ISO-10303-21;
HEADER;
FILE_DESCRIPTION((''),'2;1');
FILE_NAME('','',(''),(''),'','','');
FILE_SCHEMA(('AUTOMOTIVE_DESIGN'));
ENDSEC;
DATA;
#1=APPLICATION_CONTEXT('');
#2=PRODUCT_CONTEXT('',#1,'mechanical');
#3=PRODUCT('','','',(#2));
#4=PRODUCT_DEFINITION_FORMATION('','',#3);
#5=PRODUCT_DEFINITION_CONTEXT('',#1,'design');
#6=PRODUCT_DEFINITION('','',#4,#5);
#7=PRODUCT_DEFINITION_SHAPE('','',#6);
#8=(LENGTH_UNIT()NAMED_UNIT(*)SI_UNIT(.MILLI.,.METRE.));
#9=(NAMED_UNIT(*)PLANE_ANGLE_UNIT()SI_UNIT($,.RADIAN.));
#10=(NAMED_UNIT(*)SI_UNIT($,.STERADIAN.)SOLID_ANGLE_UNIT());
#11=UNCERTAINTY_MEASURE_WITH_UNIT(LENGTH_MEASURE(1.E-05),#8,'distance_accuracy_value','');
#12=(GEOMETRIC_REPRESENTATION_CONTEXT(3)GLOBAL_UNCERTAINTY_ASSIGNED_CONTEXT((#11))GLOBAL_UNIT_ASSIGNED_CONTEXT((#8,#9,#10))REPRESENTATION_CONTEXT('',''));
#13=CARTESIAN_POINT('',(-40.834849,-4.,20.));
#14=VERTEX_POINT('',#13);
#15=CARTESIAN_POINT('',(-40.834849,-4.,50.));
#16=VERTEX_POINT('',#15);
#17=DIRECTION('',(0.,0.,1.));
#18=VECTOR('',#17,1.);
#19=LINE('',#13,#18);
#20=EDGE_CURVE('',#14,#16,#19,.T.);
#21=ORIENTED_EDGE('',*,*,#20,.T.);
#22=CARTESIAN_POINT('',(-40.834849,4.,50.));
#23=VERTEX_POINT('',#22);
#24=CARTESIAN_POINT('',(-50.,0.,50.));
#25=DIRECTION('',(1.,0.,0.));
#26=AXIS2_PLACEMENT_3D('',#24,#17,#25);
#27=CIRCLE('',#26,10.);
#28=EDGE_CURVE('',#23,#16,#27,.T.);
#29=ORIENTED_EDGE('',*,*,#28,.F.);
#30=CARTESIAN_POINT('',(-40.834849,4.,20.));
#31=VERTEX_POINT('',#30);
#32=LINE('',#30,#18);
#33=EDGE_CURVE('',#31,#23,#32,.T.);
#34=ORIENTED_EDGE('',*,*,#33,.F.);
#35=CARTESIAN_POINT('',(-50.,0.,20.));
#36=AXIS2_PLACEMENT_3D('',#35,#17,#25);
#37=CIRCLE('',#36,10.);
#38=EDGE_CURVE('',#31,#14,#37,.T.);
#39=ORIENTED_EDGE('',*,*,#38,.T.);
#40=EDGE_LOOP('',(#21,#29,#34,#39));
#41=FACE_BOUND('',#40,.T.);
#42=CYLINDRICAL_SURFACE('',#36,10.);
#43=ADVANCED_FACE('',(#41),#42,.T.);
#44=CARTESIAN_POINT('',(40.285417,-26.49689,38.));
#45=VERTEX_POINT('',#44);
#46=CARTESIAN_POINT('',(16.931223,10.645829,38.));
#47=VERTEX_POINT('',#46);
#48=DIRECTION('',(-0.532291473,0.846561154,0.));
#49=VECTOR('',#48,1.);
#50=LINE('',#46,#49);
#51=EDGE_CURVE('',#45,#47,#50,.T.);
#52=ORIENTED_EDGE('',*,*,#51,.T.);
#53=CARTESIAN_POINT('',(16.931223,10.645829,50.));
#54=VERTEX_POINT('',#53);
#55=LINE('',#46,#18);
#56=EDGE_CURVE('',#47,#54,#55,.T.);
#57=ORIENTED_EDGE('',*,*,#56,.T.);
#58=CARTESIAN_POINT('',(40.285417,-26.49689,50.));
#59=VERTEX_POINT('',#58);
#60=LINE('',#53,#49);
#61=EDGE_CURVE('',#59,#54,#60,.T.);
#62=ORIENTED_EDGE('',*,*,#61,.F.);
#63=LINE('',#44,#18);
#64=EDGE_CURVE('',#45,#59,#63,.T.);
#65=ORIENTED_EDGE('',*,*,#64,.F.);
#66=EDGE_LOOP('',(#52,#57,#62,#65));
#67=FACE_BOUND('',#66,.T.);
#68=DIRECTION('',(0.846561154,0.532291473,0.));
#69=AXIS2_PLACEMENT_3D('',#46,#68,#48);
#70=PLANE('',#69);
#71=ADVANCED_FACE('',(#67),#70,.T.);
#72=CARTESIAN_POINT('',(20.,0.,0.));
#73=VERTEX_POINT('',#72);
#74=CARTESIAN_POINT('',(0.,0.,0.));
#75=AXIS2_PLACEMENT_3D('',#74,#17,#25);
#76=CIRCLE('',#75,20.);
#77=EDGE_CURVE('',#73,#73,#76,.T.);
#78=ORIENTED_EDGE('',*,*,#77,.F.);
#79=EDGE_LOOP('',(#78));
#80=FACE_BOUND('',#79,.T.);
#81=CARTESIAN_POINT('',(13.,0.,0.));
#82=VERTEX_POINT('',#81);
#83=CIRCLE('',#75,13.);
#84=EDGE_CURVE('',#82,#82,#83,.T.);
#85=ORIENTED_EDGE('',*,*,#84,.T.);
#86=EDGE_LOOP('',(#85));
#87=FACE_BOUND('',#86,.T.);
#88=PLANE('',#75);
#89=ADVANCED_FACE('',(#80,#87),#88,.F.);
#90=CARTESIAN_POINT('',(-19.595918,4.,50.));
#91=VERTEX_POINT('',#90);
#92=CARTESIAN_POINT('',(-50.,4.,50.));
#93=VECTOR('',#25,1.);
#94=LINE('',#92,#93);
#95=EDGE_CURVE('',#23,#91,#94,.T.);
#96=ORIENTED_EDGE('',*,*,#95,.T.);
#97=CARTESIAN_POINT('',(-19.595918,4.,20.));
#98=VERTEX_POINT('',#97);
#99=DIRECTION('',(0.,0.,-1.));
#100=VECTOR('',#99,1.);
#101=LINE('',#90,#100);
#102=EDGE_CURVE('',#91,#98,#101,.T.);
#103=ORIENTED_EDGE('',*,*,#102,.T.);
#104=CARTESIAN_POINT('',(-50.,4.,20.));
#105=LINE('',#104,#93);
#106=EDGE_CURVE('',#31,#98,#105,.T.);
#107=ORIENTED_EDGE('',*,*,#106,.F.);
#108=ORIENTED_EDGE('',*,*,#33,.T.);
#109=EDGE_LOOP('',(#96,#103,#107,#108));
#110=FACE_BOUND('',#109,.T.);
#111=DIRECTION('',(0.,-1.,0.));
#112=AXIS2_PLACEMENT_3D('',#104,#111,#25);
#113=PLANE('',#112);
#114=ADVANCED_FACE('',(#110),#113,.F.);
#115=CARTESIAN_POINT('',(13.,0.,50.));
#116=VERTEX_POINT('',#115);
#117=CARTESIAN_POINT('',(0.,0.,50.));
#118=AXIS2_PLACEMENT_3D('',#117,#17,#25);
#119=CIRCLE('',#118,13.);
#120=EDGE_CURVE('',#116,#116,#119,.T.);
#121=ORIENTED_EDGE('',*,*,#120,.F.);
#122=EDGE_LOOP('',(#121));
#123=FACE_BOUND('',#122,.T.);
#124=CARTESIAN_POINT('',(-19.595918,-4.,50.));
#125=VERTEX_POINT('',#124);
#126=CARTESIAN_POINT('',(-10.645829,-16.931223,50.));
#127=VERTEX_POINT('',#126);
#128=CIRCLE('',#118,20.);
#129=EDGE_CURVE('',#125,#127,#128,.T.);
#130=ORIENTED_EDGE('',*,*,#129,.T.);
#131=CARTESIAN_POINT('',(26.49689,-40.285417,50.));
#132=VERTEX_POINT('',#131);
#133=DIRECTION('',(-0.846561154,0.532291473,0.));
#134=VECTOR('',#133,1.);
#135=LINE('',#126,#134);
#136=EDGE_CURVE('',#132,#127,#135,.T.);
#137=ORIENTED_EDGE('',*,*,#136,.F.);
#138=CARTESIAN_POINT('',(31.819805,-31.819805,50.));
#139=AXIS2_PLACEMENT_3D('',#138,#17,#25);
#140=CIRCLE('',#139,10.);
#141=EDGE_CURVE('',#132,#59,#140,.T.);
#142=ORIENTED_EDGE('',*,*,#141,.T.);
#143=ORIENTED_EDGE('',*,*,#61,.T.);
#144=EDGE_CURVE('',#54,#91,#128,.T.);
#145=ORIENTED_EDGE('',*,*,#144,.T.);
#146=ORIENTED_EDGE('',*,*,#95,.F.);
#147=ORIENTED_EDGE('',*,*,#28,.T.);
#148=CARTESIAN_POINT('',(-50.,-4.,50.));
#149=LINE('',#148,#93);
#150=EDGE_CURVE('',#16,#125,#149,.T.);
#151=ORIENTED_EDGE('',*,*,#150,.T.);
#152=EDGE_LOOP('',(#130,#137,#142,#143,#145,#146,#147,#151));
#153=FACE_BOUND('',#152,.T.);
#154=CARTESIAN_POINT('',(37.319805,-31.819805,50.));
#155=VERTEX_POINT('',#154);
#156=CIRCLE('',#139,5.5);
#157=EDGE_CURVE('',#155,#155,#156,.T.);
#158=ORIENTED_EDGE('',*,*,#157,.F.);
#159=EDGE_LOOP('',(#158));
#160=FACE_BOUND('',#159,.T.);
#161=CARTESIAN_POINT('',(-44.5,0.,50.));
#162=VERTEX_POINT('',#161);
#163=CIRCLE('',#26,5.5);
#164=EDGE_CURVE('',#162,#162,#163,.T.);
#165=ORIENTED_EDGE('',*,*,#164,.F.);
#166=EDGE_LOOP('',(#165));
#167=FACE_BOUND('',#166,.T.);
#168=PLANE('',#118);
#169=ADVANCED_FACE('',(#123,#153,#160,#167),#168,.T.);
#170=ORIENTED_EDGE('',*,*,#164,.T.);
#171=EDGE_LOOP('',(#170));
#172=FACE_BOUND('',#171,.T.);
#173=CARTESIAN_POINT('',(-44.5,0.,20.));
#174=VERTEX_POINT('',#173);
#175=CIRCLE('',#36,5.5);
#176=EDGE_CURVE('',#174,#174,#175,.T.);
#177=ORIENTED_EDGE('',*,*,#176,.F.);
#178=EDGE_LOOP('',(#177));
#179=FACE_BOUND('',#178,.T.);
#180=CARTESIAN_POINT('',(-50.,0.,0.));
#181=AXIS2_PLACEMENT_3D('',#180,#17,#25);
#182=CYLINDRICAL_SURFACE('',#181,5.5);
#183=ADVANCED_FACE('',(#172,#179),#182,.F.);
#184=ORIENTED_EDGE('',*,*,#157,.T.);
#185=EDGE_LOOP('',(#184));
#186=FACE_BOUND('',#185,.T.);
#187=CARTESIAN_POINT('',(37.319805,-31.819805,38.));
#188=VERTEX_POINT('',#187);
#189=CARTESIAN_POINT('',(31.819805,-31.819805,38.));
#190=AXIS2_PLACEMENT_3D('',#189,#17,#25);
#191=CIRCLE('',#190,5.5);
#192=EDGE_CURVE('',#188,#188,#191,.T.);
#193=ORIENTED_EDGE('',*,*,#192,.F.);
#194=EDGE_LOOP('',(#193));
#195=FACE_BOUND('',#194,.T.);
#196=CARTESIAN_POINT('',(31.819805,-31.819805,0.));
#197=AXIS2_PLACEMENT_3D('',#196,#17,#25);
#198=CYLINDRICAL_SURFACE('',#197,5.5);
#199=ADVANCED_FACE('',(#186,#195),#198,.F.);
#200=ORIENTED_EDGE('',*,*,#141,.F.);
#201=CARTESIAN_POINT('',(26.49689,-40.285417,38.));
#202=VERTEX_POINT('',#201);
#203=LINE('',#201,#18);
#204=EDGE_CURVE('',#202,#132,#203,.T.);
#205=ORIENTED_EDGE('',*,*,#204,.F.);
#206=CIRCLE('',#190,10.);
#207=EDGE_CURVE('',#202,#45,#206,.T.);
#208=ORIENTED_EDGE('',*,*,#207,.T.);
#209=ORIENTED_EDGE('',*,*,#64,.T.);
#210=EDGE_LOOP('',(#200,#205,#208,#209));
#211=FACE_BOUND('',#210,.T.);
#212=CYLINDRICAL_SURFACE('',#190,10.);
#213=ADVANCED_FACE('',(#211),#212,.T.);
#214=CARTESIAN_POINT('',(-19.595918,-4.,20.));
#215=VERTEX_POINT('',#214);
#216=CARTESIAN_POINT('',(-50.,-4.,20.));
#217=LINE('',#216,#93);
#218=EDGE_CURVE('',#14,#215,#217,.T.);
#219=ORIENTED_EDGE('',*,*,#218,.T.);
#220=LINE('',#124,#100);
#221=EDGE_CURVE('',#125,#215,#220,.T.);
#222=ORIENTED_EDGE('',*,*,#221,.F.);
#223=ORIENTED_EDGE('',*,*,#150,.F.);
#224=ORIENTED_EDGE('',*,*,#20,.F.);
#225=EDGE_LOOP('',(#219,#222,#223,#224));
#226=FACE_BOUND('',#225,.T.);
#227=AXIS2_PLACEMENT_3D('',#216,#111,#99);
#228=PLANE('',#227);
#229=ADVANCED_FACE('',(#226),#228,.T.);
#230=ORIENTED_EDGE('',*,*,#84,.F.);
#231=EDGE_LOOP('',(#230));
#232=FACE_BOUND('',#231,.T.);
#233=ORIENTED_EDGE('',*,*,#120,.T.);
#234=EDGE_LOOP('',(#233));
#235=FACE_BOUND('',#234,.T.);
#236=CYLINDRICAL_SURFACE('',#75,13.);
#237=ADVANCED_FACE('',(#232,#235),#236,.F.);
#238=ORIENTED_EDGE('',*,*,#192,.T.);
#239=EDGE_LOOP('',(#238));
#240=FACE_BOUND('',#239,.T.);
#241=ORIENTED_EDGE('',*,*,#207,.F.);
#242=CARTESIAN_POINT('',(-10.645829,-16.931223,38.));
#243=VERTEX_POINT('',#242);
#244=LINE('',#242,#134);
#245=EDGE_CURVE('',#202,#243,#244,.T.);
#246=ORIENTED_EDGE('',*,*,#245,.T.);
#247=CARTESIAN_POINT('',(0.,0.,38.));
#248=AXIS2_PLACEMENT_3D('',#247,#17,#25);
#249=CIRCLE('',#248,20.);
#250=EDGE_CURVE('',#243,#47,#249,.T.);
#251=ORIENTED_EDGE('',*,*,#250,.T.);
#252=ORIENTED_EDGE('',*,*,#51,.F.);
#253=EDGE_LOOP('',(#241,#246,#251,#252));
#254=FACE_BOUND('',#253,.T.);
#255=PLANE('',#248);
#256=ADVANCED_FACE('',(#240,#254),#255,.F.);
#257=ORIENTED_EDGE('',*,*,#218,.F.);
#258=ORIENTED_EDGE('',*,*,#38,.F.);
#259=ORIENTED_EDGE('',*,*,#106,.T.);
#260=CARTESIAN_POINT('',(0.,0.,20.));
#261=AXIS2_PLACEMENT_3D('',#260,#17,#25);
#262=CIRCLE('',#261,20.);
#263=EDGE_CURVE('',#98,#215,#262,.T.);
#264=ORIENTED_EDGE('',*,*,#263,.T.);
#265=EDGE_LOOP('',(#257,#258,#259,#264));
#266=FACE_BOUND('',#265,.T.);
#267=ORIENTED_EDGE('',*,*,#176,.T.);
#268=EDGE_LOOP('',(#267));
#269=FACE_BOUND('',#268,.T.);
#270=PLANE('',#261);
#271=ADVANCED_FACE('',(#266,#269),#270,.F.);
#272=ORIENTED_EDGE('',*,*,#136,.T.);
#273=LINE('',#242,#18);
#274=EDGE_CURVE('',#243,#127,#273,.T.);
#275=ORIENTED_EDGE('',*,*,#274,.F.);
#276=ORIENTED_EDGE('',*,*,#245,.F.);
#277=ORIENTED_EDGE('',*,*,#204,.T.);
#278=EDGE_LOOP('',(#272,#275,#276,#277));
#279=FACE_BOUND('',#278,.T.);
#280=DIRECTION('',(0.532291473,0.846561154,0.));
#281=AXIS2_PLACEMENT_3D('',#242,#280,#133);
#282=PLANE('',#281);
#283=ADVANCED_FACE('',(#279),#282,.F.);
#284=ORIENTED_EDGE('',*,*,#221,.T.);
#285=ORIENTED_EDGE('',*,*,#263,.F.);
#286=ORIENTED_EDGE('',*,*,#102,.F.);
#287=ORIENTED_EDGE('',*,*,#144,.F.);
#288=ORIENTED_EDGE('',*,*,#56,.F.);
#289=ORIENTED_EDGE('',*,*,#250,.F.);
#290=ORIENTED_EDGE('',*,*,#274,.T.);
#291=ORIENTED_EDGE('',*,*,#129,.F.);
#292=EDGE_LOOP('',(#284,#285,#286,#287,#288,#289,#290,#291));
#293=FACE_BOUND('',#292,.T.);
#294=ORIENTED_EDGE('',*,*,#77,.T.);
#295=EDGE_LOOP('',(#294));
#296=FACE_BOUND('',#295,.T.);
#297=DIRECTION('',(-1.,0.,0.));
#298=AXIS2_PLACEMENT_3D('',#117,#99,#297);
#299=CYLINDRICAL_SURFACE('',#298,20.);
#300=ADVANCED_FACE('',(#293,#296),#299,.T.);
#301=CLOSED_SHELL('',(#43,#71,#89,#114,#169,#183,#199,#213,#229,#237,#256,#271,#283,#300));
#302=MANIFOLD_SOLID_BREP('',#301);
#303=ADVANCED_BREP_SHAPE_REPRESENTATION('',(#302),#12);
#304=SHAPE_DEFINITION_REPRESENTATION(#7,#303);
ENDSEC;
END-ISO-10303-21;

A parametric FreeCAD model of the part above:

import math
import FreeCAD as App
import Part
import Sketcher
Q = App.Units.Quantity

doc = App.newDocument("Part")
body = doc.addObject("PartDesign::Body", "Body")

sketch1 = body.newObject("Sketcher::SketchObject", "Sketch")
sketch1.AttachmentSupport = (doc.getObject("XY_Plane"), [""])
sketch1.MapMode = "FlatFace"
sketch1.addGeometry(Part.Circle(App.Vector(0, 0, 0), App.Vector(0, 0, 1), 20), False)
sketch1.addConstraint([
    Sketcher.Constraint("Coincident", 0, 3, -1, 1),
    Sketcher.Constraint("Diameter", 0, Q("40 mm")),
])
pad1 = body.newObject("PartDesign::Pad", "Pad")
pad1.Profile = sketch1
pad1.Length = 50

sketch2 = body.newObject("Sketcher::SketchObject", "Sketch001")
sketch2.AttachmentSupport = (doc.getObject("XY_Plane"), [""])
sketch2.MapMode = "FlatFace"
sketch2.AttachmentOffset = App.Placement(App.Vector(0, 0, 50), App.Rotation())
sketch2.addGeometry([
    Part.LineSegment(App.Vector(-41, -4, 0), App.Vector(0, -4, 0)),
    Part.LineSegment(App.Vector(0, -4, 0), App.Vector(0, 4, 0)),
    Part.LineSegment(App.Vector(0, 4, 0), App.Vector(-41, 4, 0)),
    Part.ArcOfCircle(Part.Circle(App.Vector(-50, 0, 0), App.Vector(0, 0, 1), 10), math.radians(24), math.radians(336)),
], False)
sketch2.addConstraint([
    Sketcher.Constraint("Coincident", 0, 2, 1, 1),
    Sketcher.Constraint("Coincident", 1, 2, 2, 1),
    Sketcher.Constraint("Coincident", 2, 2, 3, 1),
    Sketcher.Constraint("Coincident", 3, 2, 0, 1),
    Sketcher.Constraint("Horizontal", 0),
    Sketcher.Constraint("Vertical", 1),
    Sketcher.Constraint("Horizontal", 2),
    Sketcher.Constraint("Symmetric", 0, 2, 1, 2, -1, 1),
    Sketcher.Constraint("PointOnObject", 3, 3, -1),
    Sketcher.Constraint("Radius", 3, Q("10 mm")),
    Sketcher.Constraint("DistanceY", 1, 1, 1, 2, Q("8 mm")),
    Sketcher.Constraint("DistanceX", 3, 3, -1, 1, Q("50 mm")),
])
pad2 = body.newObject("PartDesign::Pad", "Pad001")
pad2.Profile = sketch2
pad2.Length = 30
pad2.Reversed = True

sketch3 = body.newObject("Sketcher::SketchObject", "Sketch002")
sketch3.AttachmentSupport = (doc.getObject("XY_Plane"), [""])
sketch3.MapMode = "FlatFace"
sketch3.AttachmentOffset = App.Placement(App.Vector(0, 0, 38), App.Rotation())
sketch3.addGeometry([
    Part.LineSegment(App.Vector(-11, -17, 0), App.Vector(26, -40, 0)),
    Part.ArcOfCircle(Part.Circle(App.Vector(32, -32, 0), App.Vector(0, 0, 1), 10), math.radians(-122), math.radians(32)),
    Part.LineSegment(App.Vector(40, -26, 0), App.Vector(17, 11, 0)),
    Part.ArcOfCircle(Part.Circle(App.Vector(0, 0, 0), App.Vector(0, 0, 1), 20), math.radians(-122), math.radians(32)),
], False)
sketch3.addConstraint([
    Sketcher.Constraint("Tangent", 0, 2, 1, 1),
    Sketcher.Constraint("Tangent", 1, 2, 2, 1),
    Sketcher.Constraint("Tangent", 2, 2, 3, 2),
    Sketcher.Constraint("Tangent", 3, 1, 0, 1),
    Sketcher.Constraint("Coincident", 3, 3, -1, 1),
    Sketcher.Constraint("Radius", 1, Q("10 mm")),
    Sketcher.Constraint("Radius", 3, Q("20 mm")),
    Sketcher.Constraint("Distance", 0, Q("43.874822 mm")),
    Sketcher.Constraint("DistanceX", -1, 1, 0, 2, Q("26.49689 mm")),
])
pad3 = body.newObject("PartDesign::Pad", "Pad002")
pad3.Profile = sketch3
pad3.Length = 12

sketch4 = body.newObject("Sketcher::SketchObject", "Sketch003")
sketch4.AttachmentSupport = (doc.getObject("XY_Plane"), [""])
sketch4.MapMode = "FlatFace"
sketch4.AttachmentOffset = App.Placement(App.Vector(0, 0, 50), App.Rotation())
sketch4.addGeometry([
    Part.Circle(App.Vector(0, 0, 0), App.Vector(0, 0, 1), 13),
    Part.Circle(App.Vector(-50, 0, 0), App.Vector(0, 0, 1), 6),
    Part.Circle(App.Vector(32, -32, 0), App.Vector(0, 0, 1), 6),
], False)
sketch4.addConstraint([
    Sketcher.Constraint("Coincident", 0, 3, -1, 1),
    Sketcher.Constraint("Equal", 1, 2),
    Sketcher.Constraint("PointOnObject", 1, 3, -1),
    Sketcher.Constraint("Diameter", 0, Q("26 mm")),
    Sketcher.Constraint("Diameter", 1, Q("11 mm")),
    Sketcher.Constraint("DistanceX", 1, 3, -1, 1, Q("50 mm")),
    Sketcher.Constraint("DistanceX", -1, 1, 2, 3, Q("31.819805 mm")),
    Sketcher.Constraint("DistanceY", 2, 3, -1, 1, Q("31.819805 mm")),
])
pocket1 = body.newObject("PartDesign::Pocket", "Pocket")
pocket1.Profile = sketch4
pocket1.Type = "ThroughAll"

doc.recompute()
